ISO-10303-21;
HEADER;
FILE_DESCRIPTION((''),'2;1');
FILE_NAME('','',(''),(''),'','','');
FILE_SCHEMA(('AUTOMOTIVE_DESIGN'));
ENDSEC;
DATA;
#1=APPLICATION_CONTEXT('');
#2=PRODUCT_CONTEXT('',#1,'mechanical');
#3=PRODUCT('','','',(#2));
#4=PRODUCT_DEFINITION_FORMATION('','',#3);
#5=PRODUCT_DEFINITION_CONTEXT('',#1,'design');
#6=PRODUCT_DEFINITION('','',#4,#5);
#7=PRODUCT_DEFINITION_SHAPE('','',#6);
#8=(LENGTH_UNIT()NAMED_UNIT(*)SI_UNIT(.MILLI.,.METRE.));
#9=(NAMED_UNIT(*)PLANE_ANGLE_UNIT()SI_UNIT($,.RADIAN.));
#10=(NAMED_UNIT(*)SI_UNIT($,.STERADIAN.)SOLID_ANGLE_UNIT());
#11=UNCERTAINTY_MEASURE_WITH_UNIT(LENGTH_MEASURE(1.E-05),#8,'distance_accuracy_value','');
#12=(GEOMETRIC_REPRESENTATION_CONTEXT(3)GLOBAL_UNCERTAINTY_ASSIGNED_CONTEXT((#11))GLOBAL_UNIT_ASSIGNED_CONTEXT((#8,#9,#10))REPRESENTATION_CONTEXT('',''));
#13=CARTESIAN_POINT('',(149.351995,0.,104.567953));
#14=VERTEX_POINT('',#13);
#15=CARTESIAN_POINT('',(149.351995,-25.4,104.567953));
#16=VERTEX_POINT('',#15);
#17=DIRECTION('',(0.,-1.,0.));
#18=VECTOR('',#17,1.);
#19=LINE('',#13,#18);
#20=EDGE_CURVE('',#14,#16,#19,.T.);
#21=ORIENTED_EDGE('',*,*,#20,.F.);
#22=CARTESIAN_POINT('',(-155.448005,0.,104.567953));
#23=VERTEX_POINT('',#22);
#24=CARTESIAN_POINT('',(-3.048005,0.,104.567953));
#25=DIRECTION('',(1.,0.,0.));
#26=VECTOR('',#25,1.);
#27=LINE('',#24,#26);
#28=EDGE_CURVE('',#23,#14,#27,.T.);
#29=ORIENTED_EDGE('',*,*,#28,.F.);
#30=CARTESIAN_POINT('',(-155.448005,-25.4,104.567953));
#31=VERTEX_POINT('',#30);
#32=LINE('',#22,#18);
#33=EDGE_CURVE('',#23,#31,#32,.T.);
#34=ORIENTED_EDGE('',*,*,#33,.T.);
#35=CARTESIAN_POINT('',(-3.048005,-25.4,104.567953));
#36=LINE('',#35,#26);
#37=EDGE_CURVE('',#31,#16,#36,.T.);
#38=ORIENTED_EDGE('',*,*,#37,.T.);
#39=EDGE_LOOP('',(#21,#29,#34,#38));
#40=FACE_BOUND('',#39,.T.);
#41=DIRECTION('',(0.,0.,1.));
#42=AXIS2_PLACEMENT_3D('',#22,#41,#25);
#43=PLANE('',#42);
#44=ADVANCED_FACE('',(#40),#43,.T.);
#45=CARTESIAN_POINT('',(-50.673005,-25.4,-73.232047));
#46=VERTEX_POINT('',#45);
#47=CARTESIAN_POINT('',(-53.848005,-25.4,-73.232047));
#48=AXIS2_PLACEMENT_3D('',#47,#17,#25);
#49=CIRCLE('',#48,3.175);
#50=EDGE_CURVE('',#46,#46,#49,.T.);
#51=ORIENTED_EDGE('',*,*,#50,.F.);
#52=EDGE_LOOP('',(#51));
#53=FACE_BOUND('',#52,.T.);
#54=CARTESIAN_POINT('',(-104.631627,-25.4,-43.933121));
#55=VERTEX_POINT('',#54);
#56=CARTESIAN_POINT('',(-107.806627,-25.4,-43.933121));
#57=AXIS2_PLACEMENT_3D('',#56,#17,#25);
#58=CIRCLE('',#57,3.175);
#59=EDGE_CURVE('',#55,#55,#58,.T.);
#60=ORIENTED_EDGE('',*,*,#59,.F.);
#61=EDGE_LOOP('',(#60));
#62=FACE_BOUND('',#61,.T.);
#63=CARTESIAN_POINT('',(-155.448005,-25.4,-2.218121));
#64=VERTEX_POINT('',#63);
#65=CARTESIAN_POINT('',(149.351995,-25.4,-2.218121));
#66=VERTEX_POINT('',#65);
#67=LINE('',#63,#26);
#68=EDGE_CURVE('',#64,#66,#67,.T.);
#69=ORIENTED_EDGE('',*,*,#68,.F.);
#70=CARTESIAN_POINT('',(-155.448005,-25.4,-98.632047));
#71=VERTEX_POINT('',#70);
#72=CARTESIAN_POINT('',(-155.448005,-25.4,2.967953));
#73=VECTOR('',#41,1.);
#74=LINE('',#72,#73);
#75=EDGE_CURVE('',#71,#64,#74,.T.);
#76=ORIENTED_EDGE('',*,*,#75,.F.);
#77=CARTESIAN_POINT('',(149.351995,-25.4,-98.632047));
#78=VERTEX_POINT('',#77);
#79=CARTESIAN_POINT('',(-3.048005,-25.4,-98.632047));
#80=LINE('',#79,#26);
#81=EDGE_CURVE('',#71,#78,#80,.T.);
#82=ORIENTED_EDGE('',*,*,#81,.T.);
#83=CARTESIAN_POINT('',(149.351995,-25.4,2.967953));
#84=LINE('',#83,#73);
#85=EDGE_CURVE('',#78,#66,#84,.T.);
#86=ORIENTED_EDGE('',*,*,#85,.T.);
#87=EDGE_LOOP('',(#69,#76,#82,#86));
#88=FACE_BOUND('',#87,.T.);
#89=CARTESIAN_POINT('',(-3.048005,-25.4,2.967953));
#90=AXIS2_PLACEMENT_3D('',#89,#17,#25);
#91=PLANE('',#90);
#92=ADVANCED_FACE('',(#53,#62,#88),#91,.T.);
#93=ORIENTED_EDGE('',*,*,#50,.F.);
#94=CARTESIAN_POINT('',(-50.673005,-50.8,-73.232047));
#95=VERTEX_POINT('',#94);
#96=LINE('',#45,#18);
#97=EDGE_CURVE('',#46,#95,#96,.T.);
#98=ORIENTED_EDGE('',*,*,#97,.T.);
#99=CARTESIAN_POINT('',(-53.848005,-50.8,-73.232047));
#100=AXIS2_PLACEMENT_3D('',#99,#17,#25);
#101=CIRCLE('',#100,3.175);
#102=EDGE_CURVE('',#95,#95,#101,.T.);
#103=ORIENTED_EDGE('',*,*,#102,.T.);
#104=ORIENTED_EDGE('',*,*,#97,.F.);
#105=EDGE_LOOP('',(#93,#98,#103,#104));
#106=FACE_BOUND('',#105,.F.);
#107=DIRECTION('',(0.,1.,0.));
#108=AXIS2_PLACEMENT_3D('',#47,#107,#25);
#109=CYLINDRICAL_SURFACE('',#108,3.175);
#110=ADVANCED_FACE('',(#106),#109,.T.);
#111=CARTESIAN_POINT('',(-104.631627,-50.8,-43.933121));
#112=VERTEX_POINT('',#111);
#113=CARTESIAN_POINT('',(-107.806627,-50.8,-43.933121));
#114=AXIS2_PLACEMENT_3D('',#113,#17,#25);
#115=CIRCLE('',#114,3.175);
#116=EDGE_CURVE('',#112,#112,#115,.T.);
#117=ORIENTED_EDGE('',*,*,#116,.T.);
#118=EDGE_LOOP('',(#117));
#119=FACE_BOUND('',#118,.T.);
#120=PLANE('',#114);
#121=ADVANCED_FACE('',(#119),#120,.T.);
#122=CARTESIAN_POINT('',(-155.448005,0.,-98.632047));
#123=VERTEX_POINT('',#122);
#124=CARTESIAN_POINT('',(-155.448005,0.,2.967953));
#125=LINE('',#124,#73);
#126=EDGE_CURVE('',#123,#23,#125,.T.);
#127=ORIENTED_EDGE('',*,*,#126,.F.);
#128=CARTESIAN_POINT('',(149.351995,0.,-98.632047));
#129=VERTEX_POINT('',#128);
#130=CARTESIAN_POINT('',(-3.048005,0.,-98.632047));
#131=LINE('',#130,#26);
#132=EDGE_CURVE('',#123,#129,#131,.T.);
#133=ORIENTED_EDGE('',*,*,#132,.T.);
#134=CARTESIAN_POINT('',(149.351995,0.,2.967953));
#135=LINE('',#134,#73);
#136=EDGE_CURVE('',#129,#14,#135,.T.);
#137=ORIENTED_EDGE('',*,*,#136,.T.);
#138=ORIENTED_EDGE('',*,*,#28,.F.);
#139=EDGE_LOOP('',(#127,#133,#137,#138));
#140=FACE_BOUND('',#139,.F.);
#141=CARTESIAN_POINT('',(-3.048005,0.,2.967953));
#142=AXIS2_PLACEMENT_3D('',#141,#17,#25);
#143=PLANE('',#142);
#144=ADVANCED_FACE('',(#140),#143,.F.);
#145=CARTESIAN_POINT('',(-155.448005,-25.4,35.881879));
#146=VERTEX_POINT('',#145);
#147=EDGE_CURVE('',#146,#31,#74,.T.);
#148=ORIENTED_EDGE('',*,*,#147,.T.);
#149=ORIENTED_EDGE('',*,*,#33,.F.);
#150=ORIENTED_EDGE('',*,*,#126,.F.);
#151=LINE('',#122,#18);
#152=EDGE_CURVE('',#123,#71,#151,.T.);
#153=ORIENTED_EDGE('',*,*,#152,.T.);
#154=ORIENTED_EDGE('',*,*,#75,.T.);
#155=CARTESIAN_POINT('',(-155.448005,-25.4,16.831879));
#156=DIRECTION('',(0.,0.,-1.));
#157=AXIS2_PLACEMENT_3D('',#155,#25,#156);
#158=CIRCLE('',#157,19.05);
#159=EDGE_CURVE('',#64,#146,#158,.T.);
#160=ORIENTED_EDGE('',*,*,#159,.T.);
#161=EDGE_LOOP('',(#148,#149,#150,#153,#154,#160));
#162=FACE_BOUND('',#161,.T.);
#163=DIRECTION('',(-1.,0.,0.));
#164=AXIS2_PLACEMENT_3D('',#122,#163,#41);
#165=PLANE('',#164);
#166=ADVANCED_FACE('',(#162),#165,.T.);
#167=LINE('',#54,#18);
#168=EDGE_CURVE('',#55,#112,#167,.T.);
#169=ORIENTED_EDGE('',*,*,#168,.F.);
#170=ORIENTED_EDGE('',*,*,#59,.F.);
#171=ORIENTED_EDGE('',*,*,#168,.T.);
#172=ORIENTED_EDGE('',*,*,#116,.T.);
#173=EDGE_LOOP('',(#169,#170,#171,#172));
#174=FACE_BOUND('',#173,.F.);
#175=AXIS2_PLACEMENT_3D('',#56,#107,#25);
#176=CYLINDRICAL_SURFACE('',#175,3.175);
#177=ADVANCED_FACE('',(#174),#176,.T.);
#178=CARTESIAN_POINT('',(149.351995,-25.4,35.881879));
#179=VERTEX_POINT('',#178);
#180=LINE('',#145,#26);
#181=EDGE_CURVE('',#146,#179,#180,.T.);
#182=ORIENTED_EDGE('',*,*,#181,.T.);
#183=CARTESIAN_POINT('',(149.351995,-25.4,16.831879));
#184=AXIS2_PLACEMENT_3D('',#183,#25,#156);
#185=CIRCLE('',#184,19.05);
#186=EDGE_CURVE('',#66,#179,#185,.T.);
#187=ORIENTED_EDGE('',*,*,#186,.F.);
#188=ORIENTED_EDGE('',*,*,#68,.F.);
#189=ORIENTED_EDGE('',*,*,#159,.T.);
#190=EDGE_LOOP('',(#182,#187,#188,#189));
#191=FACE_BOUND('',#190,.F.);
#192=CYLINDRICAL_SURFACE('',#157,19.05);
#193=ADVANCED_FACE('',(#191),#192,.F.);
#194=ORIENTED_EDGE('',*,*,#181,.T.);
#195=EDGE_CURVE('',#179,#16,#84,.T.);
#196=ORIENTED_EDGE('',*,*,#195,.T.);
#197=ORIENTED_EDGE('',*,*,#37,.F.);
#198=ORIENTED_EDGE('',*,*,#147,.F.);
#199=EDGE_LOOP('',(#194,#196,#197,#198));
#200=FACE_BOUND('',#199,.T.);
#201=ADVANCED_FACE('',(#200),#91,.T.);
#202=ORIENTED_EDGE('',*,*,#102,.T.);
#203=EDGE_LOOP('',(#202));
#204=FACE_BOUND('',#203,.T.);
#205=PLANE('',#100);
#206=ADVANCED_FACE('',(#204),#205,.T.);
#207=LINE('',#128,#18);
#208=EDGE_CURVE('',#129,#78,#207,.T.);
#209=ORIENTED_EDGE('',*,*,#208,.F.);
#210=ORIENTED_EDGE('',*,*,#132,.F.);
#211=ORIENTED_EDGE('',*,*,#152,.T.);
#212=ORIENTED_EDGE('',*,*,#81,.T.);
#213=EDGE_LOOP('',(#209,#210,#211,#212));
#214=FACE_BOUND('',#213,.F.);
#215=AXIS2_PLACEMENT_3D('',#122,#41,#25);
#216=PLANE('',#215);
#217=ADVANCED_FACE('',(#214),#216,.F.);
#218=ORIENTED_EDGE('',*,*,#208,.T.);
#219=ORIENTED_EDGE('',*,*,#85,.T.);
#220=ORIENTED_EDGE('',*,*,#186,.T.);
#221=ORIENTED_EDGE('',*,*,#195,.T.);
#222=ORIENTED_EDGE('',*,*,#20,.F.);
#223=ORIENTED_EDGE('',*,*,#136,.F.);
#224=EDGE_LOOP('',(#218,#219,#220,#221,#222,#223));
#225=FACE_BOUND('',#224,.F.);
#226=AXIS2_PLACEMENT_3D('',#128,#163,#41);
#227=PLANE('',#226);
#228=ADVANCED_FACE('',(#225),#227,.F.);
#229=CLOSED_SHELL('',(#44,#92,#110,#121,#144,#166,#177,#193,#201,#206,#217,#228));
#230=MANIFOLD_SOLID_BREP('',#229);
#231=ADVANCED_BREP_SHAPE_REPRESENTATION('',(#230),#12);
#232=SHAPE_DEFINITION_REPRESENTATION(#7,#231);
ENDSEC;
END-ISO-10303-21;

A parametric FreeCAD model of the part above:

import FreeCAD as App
import Part
import Sketcher
from FreeCAD import Vector
Q = App.Units.Quantity

doc = App.newDocument("Part")
body = doc.addObject("PartDesign::Body", "Body")

# Sketch on XZ plane
sketch1 = body.newObject("Sketcher::SketchObject", "Sketch")
sketch1.AttachmentSupport = (doc.getObject("XZ_Plane"), [""])
sketch1.MapMode = "FlatFace"
sketch1.addGeometry([
    Part.LineSegment(Vector(-155, 105, 0), Vector(-155, -99, 0)),
    Part.LineSegment(Vector(-155, -99, 0), Vector(149, -99, 0)),
    Part.LineSegment(Vector(149, -99, 0), Vector(149, 105, 0)),
    Part.LineSegment(Vector(149, 105, 0), Vector(-155, 105, 0)),
], False)
sketch1.addConstraint([
    Sketcher.Constraint("Coincident", 0, 2, 1, 1),
    Sketcher.Constraint("Coincident", 1, 2, 2, 1),
    Sketcher.Constraint("Coincident", 2, 2, 3, 1),
    Sketcher.Constraint("Coincident", 3, 2, 0, 1),
    Sketcher.Constraint("Vertical", 0),
    Sketcher.Constraint("Horizontal", 1),
    Sketcher.Constraint("Vertical", 2),
    Sketcher.Constraint("Horizontal", 3),
    Sketcher.Constraint("DistanceX", 1, 1, 1, 2, Q("12 in")),
    Sketcher.Constraint("DistanceY", 0, 2, 0, 1, Q("8 in")),
    Sketcher.Constraint("DistanceX", 0, 2, -1, 1, Q("6.1200002 in")),
    Sketcher.Constraint("DistanceY", 0, 2, -1, 1, Q("98.632047 mm")),
])
pad1 = body.newObject("PartDesign::Pad", "Pad")
pad1.Profile = sketch1
pad1.Length = Q("1 in")

# Sketch on XZ plane
sketch2 = body.newObject("Sketcher::SketchObject", "Sketch001")
sketch2.AttachmentSupport = (doc.getObject("XZ_Plane"), [""])
sketch2.MapMode = "FlatFace"
sketch2.AttachmentOffset = App.Placement(Vector(0, 0, 1 * 25.4), App.Rotation())
sketch2.addGeometry([
    Part.Circle(Vector(-53.8, -73.2, 0), Vector(0, 0, 1), 3.2),
    Part.Circle(Vector(-107.8, -43.9, 0), Vector(0, 0, 1), 3.2),
], False)
sketch2.addConstraint([
    Sketcher.Constraint("Equal", 0, 1),
    Sketcher.Constraint("Diameter", 0, Q("0.25 in")),
    Sketcher.Constraint("DistanceX", 0, 3, -1, 1, Q("2.1200002 in")),
    Sketcher.Constraint("DistanceY", 1, 3, -1, 1, Q("43.933121 mm")),
    Sketcher.Constraint("DistanceY", 0, 3, -1, 1, Q("73.232047 mm")),
    Sketcher.Constraint("DistanceX", 1, 3, -1, 1, Q("107.806627 mm")),
])
pad2 = body.newObject("PartDesign::Pad", "Pad001")
pad2.Profile = sketch2
pad2.Length = Q("1 in")

# Sketch on XZ plane
sketch3 = body.newObject("Sketcher::SketchObject", "Sketch002")
sketch3.AttachmentSupport = (doc.getObject("XZ_Plane"), [""])
sketch3.MapMode = "FlatFace"
sketch3.AttachmentOffset = App.Placement(Vector(0, 0, 1 * 25.4), App.Rotation())
sketch3.addGeometry([
    Part.LineSegment(Vector(149, 17, 0), Vector(-155, 17, 0)),
    Part.LineSegment(Vector(-155, 17, 0), Vector(-155, -2, 0)),
    Part.LineSegment(Vector(-155, -2, 0), Vector(149, -2, 0)),
    Part.LineSegment(Vector(149, -2, 0), Vector(149, 17, 0)),
], False)
sketch3.addGeometry(Part.LineSegment(Vector(-155, 17, 0), Vector(149, 17, 0)), True)  # axis
sketch3.addConstraint([
    Sketcher.Constraint("Coincident", 0, 2, 1, 1),
    Sketcher.Constraint("Coincident", 1, 2, 2, 1),
    Sketcher.Constraint("Coincident", 2, 2, 3, 1),
    Sketcher.Constraint("Coincident", 3, 2, 0, 1),
    Sketcher.Constraint("Horizontal", 0),
    Sketcher.Constraint("Vertical", 1),
    Sketcher.Constraint("Horizontal", 2),
    Sketcher.Constraint("Vertical", 3),
    Sketcher.Constraint("Horizontal", 4),
    Sketcher.Constraint("Coincident", 4, 1, 0, 2),
    Sketcher.Constraint("Vertical", 2, 2, 4, 2),
    Sketcher.Constraint("DistanceX", 0, 2, 0, 1, Q("12 in")),
    Sketcher.Constraint("DistanceY", 1, 2, 1, 1, Q("0.75 in")),
    Sketcher.Constraint("DistanceX", 0, 2, -1, 1, Q("6.1200002 in")),
    Sketcher.Constraint("DistanceY", -1, 1, 0, 2, Q("16.831879 mm")),
])
groove = body.newObject("PartDesign::Groove", "Groove")
groove.Profile = sketch3
groove.ReferenceAxis = (sketch3, ["Axis0"])
groove.Angle = 360

doc.recompute()
